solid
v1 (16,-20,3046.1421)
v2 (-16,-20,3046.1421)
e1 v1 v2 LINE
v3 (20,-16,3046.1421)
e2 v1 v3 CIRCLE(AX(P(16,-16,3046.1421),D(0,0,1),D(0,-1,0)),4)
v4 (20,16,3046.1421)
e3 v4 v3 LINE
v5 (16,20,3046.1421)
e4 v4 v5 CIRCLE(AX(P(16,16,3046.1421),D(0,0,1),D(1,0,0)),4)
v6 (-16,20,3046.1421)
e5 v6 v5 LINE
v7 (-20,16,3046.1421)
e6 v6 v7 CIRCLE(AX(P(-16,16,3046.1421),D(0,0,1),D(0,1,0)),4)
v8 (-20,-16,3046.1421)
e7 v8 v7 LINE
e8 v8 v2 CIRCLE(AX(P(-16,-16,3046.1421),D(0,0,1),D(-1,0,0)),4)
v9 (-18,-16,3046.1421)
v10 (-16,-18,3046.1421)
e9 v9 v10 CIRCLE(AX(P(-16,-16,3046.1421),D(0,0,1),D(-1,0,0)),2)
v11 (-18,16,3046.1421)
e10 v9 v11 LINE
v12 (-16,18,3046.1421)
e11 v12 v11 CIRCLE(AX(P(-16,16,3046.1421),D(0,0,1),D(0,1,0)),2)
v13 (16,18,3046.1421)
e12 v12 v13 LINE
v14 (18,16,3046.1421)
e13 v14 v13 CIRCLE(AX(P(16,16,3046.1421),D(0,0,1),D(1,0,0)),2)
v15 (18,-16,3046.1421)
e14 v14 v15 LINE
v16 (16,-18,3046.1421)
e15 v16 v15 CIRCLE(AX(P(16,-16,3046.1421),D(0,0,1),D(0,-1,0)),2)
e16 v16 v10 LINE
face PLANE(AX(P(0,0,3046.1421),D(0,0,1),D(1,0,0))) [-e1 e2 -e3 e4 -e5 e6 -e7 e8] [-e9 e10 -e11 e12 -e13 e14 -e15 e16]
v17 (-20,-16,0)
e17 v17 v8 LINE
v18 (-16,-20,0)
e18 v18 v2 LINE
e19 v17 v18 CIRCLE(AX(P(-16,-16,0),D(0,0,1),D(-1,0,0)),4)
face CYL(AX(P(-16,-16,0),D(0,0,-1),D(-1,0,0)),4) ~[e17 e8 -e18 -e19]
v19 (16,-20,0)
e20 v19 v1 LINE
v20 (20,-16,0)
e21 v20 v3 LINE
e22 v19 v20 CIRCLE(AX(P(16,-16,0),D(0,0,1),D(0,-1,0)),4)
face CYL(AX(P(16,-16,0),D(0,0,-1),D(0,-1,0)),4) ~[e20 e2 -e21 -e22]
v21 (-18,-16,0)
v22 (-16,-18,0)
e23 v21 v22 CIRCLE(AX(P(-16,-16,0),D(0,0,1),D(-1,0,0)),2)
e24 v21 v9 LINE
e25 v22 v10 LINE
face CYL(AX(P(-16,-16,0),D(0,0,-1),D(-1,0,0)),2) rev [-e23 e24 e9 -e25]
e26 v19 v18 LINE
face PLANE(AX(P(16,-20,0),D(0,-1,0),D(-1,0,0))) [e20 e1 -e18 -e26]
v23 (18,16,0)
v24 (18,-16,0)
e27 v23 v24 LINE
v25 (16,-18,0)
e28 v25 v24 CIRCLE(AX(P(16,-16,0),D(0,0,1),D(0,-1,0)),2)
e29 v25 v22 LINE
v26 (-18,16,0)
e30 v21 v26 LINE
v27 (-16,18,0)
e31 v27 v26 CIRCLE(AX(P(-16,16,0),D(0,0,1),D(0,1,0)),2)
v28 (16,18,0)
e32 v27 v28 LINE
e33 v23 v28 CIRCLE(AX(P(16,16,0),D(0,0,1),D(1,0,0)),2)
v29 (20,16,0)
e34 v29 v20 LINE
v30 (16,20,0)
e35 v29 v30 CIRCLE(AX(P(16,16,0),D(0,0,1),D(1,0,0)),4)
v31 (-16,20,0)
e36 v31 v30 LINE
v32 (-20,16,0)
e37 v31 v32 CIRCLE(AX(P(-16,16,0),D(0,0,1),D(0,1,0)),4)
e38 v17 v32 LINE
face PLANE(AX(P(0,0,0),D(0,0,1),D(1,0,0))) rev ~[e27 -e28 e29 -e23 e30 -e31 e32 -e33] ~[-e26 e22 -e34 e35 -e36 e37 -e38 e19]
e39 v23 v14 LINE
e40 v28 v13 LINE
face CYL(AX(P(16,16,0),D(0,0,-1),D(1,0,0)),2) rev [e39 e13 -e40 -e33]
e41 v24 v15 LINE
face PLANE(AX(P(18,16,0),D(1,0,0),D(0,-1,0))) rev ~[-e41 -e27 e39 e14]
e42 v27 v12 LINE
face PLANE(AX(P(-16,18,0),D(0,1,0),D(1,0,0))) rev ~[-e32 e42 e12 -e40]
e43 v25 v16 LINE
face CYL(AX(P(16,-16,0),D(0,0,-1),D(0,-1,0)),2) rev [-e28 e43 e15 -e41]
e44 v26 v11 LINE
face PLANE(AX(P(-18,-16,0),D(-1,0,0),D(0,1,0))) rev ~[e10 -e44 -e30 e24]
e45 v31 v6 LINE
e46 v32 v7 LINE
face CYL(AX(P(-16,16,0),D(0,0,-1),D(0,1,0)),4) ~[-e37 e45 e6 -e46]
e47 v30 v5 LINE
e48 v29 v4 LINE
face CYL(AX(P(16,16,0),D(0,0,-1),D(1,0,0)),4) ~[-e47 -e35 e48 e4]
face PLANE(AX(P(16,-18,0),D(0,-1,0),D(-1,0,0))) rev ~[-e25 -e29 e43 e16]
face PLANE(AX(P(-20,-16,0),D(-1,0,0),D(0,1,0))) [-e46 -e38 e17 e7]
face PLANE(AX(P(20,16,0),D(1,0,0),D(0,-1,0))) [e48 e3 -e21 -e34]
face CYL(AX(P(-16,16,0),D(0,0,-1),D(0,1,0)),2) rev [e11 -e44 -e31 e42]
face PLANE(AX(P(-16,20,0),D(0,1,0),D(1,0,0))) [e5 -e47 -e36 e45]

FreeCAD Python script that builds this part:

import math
import FreeCAD as App
import Part
import Sketcher

doc = App.newDocument("Part")
body = doc.addObject("PartDesign::Body", "Body")

# Sketch on XY plane
sketch1 = doc.addObject("Sketcher::SketchObject", "Sketch")
body.addObject(sketch1)
sketch1.AttachmentSupport = (doc.XY_Plane, [""])
sketch1.MapMode = "FlatFace"
sketch1.addGeometry([
    Part.LineSegment(App.Vector(-20, 16, 0), App.Vector(-20, -16, 0)),  # 0
    Part.ArcOfCircle(Part.Circle(App.Vector(-16, -16, 0), App.Vector(0, 0, 1), 4), math.radians(180), math.radians(270)),  # 1
    Part.LineSegment(App.Vector(-16, -20, 0), App.Vector(16, -20, 0)),  # 2
    Part.ArcOfCircle(Part.Circle(App.Vector(16, -16, 0), App.Vector(0, 0, 1), 4), math.radians(-90), math.radians(0)),  # 3
    Part.LineSegment(App.Vector(20, -16, 0), App.Vector(20, 16, 0)),  # 4
    Part.ArcOfCircle(Part.Circle(App.Vector(16, 16, 0), App.Vector(0, 0, 1), 4), math.radians(0), math.radians(90)),  # 5
    Part.LineSegment(App.Vector(16, 20, 0), App.Vector(-16, 20, 0)),  # 6
    Part.ArcOfCircle(Part.Circle(App.Vector(-16, 16, 0), App.Vector(0, 0, 1), 4), math.radians(90), math.radians(180)),  # 7
    Part.ArcOfCircle(Part.Circle(App.Vector(-16, 16, 0), App.Vector(0, 0, 1), 2), math.radians(90), math.radians(180)),  # 8
    Part.LineSegment(App.Vector(-16, 18, 0), App.Vector(16, 18, 0)),  # 9
    Part.ArcOfCircle(Part.Circle(App.Vector(16, 16, 0), App.Vector(0, 0, 1), 2), math.radians(0), math.radians(90)),  # 10
    Part.LineSegment(App.Vector(18, 16, 0), App.Vector(18, -16, 0)),  # 11
    Part.ArcOfCircle(Part.Circle(App.Vector(16, -16, 0), App.Vector(0, 0, 1), 2), math.radians(-90), math.radians(0)),  # 12
    Part.LineSegment(App.Vector(16, -18, 0), App.Vector(-16, -18, 0)),  # 13
    Part.ArcOfCircle(Part.Circle(App.Vector(-16, -16, 0), App.Vector(0, 0, 1), 2), math.radians(180), math.radians(270)),  # 14
    Part.LineSegment(App.Vector(-18, -16, 0), App.Vector(-18, 16, 0)),  # 15
], False)
sketch1.addConstraint([
    Sketcher.Constraint("Tangent", 0, 2, 1, 1),
    Sketcher.Constraint("Tangent", 1, 2, 2, 1),
    Sketcher.Constraint("Tangent", 2, 2, 3, 1),
    Sketcher.Constraint("Tangent", 3, 2, 4, 1),
    Sketcher.Constraint("Tangent", 4, 2, 5, 1),
    Sketcher.Constraint("Tangent", 5, 2, 6, 1),
    Sketcher.Constraint("Tangent", 6, 2, 7, 1),
    Sketcher.Constraint("Tangent", 7, 2, 0, 1),
    Sketcher.Constraint("Tangent", 8, 1, 9, 1),
    Sketcher.Constraint("Tangent", 9, 2, 10, 2),
    Sketcher.Constraint("Tangent", 10, 1, 11, 1),
    Sketcher.Constraint("Tangent", 11, 2, 12, 2),
    Sketcher.Constraint("Tangent", 12, 1, 13, 1),
    Sketcher.Constraint("Tangent", 13, 2, 14, 2),
    Sketcher.Constraint("Tangent", 14, 1, 15, 1),
    Sketcher.Constraint("Tangent", 15, 2, 8, 2),
    Sketcher.Constraint("Vertical", 0),
    Sketcher.Constraint("Horizontal", 2),
    Sketcher.Constraint("Vertical", 4),
    Sketcher.Constraint("Horizontal", 6),
    Sketcher.Constraint("Horizontal", 9),
    Sketcher.Constraint("Vertical", 11),
    Sketcher.Constraint("Horizontal", 13),
    Sketcher.Constraint("Vertical", 15),
    Sketcher.Constraint("Coincident", 8, 3, 7, 3),
    Sketcher.Constraint("Coincident", 10, 3, 5, 3),
    Sketcher.Constraint("Coincident", 12, 3, 3, 3),
    Sketcher.Constraint("Equal", 1, 3),
    Sketcher.Constraint("Equal", 3, 5),
    Sketcher.Constraint("Equal", 5, 7),
    Sketcher.Constraint("Equal", 12, 14),
    Sketcher.Constraint("Symmetric", 1, 3, 5, 3, -1, 1),
    Sketcher.Constraint("Equal", 13, 0),
    Sketcher.Constraint("Radius", 1, 4.0),
    Sketcher.Constraint("Radius", 8, 2.0),
    Sketcher.Constraint("DistanceX", 0, 2, -1, 1, 20.0),
])
pad1 = doc.addObject("PartDesign::Pad", "Pad")
body.addObject(pad1)
pad1.Profile = sketch1
pad1.Length = 3046.1421

doc.recompute()
